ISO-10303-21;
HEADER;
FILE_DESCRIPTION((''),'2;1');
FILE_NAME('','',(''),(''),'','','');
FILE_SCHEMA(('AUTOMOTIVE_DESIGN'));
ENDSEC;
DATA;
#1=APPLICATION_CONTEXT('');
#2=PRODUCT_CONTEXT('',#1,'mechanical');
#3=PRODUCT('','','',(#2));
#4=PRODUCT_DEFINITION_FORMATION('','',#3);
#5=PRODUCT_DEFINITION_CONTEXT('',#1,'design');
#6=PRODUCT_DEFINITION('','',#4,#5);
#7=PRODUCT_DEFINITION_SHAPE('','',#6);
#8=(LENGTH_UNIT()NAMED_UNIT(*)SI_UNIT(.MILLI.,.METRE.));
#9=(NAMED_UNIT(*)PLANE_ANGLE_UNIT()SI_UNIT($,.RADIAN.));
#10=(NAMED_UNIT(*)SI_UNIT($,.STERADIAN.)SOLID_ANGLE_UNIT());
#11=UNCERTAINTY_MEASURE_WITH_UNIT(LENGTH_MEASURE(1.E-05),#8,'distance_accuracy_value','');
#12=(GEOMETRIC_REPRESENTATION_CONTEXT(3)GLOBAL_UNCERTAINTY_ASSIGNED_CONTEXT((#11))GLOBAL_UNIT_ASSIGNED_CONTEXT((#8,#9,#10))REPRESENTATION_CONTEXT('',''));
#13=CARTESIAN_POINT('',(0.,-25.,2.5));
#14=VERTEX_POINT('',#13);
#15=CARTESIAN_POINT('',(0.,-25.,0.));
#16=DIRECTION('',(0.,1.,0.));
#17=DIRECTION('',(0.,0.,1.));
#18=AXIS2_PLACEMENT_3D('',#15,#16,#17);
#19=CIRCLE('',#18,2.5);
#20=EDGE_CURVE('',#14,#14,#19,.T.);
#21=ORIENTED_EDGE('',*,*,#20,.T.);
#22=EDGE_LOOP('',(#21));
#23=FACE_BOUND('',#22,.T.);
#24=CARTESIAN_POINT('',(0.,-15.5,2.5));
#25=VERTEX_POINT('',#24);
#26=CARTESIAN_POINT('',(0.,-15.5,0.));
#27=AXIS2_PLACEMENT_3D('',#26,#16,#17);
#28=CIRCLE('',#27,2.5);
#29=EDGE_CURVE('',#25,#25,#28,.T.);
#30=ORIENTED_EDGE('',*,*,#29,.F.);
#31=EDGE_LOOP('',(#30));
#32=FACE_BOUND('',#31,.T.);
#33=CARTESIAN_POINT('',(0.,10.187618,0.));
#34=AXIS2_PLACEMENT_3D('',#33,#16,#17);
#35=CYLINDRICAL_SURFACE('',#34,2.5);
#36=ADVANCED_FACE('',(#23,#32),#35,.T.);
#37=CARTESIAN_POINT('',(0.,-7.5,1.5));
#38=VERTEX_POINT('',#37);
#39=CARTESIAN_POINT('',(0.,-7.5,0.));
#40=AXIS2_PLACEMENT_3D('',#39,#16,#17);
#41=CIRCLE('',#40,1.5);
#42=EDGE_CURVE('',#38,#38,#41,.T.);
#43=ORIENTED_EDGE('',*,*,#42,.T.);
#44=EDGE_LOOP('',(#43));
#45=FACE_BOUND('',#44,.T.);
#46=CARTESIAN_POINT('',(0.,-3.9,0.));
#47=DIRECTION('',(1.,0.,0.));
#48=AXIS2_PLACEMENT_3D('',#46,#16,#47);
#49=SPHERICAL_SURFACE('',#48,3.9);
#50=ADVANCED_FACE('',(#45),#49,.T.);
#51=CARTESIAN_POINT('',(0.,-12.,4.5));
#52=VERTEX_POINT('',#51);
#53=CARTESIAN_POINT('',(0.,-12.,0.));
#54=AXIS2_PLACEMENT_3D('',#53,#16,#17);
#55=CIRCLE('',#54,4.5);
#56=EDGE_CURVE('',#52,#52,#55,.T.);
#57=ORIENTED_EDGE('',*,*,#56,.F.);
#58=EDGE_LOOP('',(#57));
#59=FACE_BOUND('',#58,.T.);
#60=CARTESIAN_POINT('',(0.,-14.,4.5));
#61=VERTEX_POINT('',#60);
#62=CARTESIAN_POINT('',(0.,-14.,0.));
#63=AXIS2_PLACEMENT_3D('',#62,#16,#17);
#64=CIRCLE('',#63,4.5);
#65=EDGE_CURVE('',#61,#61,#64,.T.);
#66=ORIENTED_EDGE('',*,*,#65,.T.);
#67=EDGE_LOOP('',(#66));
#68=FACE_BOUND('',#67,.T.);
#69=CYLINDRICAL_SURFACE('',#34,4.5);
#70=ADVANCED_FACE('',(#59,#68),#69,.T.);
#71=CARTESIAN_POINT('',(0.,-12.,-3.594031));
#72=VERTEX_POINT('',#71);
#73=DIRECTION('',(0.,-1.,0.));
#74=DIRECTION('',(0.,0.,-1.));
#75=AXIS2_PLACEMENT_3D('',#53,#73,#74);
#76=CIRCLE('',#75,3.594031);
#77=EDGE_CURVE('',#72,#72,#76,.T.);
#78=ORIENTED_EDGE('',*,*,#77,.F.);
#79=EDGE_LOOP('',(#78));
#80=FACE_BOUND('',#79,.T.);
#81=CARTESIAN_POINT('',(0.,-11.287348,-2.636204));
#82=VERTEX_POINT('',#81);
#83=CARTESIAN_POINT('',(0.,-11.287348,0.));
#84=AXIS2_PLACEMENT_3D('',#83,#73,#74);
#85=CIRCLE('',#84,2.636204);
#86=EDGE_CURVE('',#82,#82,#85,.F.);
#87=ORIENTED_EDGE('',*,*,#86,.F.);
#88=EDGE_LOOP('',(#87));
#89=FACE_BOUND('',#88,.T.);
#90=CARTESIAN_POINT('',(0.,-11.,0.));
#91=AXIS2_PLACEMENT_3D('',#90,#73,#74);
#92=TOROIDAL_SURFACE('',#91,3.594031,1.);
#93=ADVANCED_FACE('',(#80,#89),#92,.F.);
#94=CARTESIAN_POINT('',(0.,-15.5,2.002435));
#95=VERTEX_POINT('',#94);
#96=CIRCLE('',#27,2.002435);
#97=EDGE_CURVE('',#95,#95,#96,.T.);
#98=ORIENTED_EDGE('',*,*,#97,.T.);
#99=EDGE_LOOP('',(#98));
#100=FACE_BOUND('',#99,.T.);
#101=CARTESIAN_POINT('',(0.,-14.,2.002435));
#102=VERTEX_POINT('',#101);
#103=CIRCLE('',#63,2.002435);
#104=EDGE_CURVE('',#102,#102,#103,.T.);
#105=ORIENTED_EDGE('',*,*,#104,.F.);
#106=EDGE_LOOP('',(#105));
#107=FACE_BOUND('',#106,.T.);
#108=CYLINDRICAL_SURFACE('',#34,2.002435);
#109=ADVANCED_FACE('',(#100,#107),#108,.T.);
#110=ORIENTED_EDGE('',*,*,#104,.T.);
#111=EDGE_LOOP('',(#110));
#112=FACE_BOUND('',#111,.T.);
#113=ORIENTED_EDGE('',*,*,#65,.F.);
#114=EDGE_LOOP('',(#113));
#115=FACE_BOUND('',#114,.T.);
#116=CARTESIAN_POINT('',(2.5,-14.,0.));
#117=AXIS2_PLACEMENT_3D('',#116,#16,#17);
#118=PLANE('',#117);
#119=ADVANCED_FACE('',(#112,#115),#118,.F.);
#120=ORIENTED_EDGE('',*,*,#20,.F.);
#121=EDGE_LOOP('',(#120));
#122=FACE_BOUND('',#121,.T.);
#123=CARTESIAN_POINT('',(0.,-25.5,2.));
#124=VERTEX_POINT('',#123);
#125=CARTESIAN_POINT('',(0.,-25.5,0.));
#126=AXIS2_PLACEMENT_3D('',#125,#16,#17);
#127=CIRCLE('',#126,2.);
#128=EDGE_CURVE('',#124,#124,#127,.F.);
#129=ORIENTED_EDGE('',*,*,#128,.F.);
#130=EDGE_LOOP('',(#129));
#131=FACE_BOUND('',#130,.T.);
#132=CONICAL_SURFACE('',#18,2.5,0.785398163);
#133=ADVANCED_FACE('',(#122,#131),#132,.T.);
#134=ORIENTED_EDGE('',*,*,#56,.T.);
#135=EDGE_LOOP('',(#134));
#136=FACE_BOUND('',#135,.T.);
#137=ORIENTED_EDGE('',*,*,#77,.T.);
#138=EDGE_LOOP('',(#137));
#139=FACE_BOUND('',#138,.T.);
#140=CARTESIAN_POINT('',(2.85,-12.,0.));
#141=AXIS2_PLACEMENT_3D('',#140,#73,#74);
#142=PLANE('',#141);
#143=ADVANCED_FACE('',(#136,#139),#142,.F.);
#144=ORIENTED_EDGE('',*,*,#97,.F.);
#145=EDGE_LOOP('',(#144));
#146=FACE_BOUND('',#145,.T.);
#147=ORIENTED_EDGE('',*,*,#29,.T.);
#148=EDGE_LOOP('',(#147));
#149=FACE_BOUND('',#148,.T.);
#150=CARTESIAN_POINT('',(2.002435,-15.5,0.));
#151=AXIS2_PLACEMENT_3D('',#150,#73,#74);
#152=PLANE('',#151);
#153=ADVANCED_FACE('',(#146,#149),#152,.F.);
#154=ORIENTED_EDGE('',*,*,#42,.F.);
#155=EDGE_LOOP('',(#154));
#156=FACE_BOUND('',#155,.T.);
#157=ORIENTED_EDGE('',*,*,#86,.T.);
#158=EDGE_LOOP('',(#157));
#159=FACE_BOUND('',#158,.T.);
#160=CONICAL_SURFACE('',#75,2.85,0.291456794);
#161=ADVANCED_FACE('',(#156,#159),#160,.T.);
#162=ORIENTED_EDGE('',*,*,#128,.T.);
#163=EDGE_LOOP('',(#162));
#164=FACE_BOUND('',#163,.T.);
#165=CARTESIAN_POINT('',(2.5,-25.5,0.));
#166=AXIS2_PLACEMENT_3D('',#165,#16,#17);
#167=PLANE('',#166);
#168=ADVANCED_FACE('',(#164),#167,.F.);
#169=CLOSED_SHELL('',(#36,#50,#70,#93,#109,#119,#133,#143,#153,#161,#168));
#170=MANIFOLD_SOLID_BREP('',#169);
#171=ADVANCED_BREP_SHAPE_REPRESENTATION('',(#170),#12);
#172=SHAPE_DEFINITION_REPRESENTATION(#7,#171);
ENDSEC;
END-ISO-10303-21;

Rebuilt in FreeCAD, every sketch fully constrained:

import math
import FreeCAD as App
import Part
import Sketcher

V = App.Vector
Q = App.Units.Quantity


def edges_at(feature, points):
    """Names of the edges that pass closest to the given points."""
    edges = feature.Shape.Edges
    near = lambda p: min(range(len(edges)), key=lambda i: edges[i].distToShape(Part.Vertex(*p))[0])
    return sorted({f"Edge{near(p) + 1}" for p in points})

doc = App.newDocument("Part")
params = doc.addObject("Spreadsheet::Sheet", "Params")
for row, (alias, value) in enumerate([
    ("sketch1_radius", "3.9 mm"),
    ("sketch1_height", "10 mm"),
    ("sketch1_height2", "2 mm"),
    ("sketch1_width", "2.5 mm"),
    ("sketch1_height3", "25.5 mm"),
    ("revolution_angle", "360 deg"),
    ("chamfer_size", "0.5 mm"),
    ("fillet_radius", "1 mm"),
], start=1):
    params.set(f"A{row}", alias)
    params.set(f"B{row}", "=" + value)
    params.setAlias(f"B{row}", alias)

body = doc.addObject("PartDesign::Body", "Body")

# Sketch on XY plane
sketch1 = body.newObject("Sketcher::SketchObject", "Sketch")
sketch1.AttachmentSupport = (doc.getObject("XY_Plane"), [""])
sketch1.MapMode = "FlatFace"
sketch1.addGeometry([
    Part.LineSegment(V(2.85, -12, 0), V(1.5, -7.5, 0)),  # 0
    Part.ArcOfCircle(Part.Circle(V(0, -3.9, 0), V(0, 0, 1), 3.9), math.radians(-67), math.radians(90)),  # 1
    Part.LineSegment(V(0, 0, 0), V(0, -25.5, 0)),  # 2
    Part.LineSegment(V(0, -25.5, 0), V(2.5, -25.5, 0)),  # 3
    Part.LineSegment(V(2.5, -25.5, 0), V(2.5, -15.5, 0)),  # 4
    Part.LineSegment(V(2.5, -15.5, 0), V(2, -15.5, 0)),  # 5
    Part.LineSegment(V(2, -15.5, 0), V(2, -14, 0)),  # 6
    Part.LineSegment(V(2, -14, 0), V(4.5, -14, 0)),  # 7
    Part.LineSegment(V(4.5, -14, 0), V(4.5, -12, 0)),  # 8
    Part.LineSegment(V(4.5, -12, 0), V(2.85, -12, 0)),  # 9
], False)
sketch1.addConstraint([
    Sketcher.Constraint("Coincident", 0, 2, 1, 1),
    Sketcher.Constraint("Coincident", 1, 2, 2, 1),
    Sketcher.Constraint("Coincident", 2, 2, 3, 1),
    Sketcher.Constraint("Coincident", 3, 2, 4, 1),
    Sketcher.Constraint("Coincident", 4, 2, 5, 1),
    Sketcher.Constraint("Coincident", 5, 2, 6, 1),
    Sketcher.Constraint("Coincident", 6, 2, 7, 1),
    Sketcher.Constraint("Coincident", 7, 2, 8, 1),
    Sketcher.Constraint("Coincident", 8, 2, 9, 1),
    Sketcher.Constraint("Coincident", 9, 2, 0, 1),
    Sketcher.Constraint("Vertical", 2),
    Sketcher.Constraint("Horizontal", 3),
    Sketcher.Constraint("Vertical", 4),
    Sketcher.Constraint("Horizontal", 5),
    Sketcher.Constraint("Vertical", 6),
    Sketcher.Constraint("Horizontal", 7),
    Sketcher.Constraint("Vertical", 8),
    Sketcher.Constraint("Horizontal", 9),
    Sketcher.Constraint("Coincident", 1, 2, -1, 1),
    Sketcher.Constraint("PointOnObject", 1, 3, -2),
    Sketcher.Constraint("Radius", 1, Q("3.9 mm")),
    Sketcher.Constraint("DistanceY", 4, 1, 4, 2, Q("10 mm")),
    Sketcher.Constraint("DistanceY", 8, 1, 8, 2, Q("2 mm")),
    Sketcher.Constraint("DistanceX", 3, 1, 3, 2, Q("2.5 mm")),
    Sketcher.Constraint("DistanceY", 2, 2, 2, 1, Q("25.5 mm")),
    Sketcher.Constraint("DistanceY", 6, 1, 6, 2, Q("1.5 mm")),
    Sketcher.Constraint("DistanceY", 2, 2, 0, 2, Q("18 mm")),
    Sketcher.Constraint("DistanceX", 4, 2, 7, 2, Q("2 mm")),
    Sketcher.Constraint("DistanceX", 9, 2, 9, 1, Q("1.65 mm")),
    Sketcher.Constraint("DistanceX", 5, 2, 5, 1, Q("0.497565 mm")),
])
sketch1.setExpression("Constraints[20]", "Params.sketch1_radius")
sketch1.setExpression("Constraints[21]", "Params.sketch1_height")
sketch1.setExpression("Constraints[22]", "Params.sketch1_height2")
sketch1.setExpression("Constraints[23]", "Params.sketch1_width")
sketch1.setExpression("Constraints[24]", "Params.sketch1_height3")
revolution = body.newObject("PartDesign::Revolution", "Revolution")
revolution.Profile = sketch1
revolution.ReferenceAxis = (sketch1, ["V_Axis"])
revolution.setExpression("Angle", "Params.revolution_angle")
doc.recompute()

chamfer = body.newObject("PartDesign::Chamfer", "Chamfer")
chamfer.Base = (revolution, edges_at(revolution, [(0, -25.5, -2.5)]))
chamfer.setExpression("Size", "Params.chamfer_size")
doc.recompute()

fillet = body.newObject("PartDesign::Fillet", "Fillet")
fillet.Base = (chamfer, edges_at(chamfer, [(0, -12, -2.85)]))
fillet.setExpression("Radius", "Params.fillet_radius")

doc.recompute()
